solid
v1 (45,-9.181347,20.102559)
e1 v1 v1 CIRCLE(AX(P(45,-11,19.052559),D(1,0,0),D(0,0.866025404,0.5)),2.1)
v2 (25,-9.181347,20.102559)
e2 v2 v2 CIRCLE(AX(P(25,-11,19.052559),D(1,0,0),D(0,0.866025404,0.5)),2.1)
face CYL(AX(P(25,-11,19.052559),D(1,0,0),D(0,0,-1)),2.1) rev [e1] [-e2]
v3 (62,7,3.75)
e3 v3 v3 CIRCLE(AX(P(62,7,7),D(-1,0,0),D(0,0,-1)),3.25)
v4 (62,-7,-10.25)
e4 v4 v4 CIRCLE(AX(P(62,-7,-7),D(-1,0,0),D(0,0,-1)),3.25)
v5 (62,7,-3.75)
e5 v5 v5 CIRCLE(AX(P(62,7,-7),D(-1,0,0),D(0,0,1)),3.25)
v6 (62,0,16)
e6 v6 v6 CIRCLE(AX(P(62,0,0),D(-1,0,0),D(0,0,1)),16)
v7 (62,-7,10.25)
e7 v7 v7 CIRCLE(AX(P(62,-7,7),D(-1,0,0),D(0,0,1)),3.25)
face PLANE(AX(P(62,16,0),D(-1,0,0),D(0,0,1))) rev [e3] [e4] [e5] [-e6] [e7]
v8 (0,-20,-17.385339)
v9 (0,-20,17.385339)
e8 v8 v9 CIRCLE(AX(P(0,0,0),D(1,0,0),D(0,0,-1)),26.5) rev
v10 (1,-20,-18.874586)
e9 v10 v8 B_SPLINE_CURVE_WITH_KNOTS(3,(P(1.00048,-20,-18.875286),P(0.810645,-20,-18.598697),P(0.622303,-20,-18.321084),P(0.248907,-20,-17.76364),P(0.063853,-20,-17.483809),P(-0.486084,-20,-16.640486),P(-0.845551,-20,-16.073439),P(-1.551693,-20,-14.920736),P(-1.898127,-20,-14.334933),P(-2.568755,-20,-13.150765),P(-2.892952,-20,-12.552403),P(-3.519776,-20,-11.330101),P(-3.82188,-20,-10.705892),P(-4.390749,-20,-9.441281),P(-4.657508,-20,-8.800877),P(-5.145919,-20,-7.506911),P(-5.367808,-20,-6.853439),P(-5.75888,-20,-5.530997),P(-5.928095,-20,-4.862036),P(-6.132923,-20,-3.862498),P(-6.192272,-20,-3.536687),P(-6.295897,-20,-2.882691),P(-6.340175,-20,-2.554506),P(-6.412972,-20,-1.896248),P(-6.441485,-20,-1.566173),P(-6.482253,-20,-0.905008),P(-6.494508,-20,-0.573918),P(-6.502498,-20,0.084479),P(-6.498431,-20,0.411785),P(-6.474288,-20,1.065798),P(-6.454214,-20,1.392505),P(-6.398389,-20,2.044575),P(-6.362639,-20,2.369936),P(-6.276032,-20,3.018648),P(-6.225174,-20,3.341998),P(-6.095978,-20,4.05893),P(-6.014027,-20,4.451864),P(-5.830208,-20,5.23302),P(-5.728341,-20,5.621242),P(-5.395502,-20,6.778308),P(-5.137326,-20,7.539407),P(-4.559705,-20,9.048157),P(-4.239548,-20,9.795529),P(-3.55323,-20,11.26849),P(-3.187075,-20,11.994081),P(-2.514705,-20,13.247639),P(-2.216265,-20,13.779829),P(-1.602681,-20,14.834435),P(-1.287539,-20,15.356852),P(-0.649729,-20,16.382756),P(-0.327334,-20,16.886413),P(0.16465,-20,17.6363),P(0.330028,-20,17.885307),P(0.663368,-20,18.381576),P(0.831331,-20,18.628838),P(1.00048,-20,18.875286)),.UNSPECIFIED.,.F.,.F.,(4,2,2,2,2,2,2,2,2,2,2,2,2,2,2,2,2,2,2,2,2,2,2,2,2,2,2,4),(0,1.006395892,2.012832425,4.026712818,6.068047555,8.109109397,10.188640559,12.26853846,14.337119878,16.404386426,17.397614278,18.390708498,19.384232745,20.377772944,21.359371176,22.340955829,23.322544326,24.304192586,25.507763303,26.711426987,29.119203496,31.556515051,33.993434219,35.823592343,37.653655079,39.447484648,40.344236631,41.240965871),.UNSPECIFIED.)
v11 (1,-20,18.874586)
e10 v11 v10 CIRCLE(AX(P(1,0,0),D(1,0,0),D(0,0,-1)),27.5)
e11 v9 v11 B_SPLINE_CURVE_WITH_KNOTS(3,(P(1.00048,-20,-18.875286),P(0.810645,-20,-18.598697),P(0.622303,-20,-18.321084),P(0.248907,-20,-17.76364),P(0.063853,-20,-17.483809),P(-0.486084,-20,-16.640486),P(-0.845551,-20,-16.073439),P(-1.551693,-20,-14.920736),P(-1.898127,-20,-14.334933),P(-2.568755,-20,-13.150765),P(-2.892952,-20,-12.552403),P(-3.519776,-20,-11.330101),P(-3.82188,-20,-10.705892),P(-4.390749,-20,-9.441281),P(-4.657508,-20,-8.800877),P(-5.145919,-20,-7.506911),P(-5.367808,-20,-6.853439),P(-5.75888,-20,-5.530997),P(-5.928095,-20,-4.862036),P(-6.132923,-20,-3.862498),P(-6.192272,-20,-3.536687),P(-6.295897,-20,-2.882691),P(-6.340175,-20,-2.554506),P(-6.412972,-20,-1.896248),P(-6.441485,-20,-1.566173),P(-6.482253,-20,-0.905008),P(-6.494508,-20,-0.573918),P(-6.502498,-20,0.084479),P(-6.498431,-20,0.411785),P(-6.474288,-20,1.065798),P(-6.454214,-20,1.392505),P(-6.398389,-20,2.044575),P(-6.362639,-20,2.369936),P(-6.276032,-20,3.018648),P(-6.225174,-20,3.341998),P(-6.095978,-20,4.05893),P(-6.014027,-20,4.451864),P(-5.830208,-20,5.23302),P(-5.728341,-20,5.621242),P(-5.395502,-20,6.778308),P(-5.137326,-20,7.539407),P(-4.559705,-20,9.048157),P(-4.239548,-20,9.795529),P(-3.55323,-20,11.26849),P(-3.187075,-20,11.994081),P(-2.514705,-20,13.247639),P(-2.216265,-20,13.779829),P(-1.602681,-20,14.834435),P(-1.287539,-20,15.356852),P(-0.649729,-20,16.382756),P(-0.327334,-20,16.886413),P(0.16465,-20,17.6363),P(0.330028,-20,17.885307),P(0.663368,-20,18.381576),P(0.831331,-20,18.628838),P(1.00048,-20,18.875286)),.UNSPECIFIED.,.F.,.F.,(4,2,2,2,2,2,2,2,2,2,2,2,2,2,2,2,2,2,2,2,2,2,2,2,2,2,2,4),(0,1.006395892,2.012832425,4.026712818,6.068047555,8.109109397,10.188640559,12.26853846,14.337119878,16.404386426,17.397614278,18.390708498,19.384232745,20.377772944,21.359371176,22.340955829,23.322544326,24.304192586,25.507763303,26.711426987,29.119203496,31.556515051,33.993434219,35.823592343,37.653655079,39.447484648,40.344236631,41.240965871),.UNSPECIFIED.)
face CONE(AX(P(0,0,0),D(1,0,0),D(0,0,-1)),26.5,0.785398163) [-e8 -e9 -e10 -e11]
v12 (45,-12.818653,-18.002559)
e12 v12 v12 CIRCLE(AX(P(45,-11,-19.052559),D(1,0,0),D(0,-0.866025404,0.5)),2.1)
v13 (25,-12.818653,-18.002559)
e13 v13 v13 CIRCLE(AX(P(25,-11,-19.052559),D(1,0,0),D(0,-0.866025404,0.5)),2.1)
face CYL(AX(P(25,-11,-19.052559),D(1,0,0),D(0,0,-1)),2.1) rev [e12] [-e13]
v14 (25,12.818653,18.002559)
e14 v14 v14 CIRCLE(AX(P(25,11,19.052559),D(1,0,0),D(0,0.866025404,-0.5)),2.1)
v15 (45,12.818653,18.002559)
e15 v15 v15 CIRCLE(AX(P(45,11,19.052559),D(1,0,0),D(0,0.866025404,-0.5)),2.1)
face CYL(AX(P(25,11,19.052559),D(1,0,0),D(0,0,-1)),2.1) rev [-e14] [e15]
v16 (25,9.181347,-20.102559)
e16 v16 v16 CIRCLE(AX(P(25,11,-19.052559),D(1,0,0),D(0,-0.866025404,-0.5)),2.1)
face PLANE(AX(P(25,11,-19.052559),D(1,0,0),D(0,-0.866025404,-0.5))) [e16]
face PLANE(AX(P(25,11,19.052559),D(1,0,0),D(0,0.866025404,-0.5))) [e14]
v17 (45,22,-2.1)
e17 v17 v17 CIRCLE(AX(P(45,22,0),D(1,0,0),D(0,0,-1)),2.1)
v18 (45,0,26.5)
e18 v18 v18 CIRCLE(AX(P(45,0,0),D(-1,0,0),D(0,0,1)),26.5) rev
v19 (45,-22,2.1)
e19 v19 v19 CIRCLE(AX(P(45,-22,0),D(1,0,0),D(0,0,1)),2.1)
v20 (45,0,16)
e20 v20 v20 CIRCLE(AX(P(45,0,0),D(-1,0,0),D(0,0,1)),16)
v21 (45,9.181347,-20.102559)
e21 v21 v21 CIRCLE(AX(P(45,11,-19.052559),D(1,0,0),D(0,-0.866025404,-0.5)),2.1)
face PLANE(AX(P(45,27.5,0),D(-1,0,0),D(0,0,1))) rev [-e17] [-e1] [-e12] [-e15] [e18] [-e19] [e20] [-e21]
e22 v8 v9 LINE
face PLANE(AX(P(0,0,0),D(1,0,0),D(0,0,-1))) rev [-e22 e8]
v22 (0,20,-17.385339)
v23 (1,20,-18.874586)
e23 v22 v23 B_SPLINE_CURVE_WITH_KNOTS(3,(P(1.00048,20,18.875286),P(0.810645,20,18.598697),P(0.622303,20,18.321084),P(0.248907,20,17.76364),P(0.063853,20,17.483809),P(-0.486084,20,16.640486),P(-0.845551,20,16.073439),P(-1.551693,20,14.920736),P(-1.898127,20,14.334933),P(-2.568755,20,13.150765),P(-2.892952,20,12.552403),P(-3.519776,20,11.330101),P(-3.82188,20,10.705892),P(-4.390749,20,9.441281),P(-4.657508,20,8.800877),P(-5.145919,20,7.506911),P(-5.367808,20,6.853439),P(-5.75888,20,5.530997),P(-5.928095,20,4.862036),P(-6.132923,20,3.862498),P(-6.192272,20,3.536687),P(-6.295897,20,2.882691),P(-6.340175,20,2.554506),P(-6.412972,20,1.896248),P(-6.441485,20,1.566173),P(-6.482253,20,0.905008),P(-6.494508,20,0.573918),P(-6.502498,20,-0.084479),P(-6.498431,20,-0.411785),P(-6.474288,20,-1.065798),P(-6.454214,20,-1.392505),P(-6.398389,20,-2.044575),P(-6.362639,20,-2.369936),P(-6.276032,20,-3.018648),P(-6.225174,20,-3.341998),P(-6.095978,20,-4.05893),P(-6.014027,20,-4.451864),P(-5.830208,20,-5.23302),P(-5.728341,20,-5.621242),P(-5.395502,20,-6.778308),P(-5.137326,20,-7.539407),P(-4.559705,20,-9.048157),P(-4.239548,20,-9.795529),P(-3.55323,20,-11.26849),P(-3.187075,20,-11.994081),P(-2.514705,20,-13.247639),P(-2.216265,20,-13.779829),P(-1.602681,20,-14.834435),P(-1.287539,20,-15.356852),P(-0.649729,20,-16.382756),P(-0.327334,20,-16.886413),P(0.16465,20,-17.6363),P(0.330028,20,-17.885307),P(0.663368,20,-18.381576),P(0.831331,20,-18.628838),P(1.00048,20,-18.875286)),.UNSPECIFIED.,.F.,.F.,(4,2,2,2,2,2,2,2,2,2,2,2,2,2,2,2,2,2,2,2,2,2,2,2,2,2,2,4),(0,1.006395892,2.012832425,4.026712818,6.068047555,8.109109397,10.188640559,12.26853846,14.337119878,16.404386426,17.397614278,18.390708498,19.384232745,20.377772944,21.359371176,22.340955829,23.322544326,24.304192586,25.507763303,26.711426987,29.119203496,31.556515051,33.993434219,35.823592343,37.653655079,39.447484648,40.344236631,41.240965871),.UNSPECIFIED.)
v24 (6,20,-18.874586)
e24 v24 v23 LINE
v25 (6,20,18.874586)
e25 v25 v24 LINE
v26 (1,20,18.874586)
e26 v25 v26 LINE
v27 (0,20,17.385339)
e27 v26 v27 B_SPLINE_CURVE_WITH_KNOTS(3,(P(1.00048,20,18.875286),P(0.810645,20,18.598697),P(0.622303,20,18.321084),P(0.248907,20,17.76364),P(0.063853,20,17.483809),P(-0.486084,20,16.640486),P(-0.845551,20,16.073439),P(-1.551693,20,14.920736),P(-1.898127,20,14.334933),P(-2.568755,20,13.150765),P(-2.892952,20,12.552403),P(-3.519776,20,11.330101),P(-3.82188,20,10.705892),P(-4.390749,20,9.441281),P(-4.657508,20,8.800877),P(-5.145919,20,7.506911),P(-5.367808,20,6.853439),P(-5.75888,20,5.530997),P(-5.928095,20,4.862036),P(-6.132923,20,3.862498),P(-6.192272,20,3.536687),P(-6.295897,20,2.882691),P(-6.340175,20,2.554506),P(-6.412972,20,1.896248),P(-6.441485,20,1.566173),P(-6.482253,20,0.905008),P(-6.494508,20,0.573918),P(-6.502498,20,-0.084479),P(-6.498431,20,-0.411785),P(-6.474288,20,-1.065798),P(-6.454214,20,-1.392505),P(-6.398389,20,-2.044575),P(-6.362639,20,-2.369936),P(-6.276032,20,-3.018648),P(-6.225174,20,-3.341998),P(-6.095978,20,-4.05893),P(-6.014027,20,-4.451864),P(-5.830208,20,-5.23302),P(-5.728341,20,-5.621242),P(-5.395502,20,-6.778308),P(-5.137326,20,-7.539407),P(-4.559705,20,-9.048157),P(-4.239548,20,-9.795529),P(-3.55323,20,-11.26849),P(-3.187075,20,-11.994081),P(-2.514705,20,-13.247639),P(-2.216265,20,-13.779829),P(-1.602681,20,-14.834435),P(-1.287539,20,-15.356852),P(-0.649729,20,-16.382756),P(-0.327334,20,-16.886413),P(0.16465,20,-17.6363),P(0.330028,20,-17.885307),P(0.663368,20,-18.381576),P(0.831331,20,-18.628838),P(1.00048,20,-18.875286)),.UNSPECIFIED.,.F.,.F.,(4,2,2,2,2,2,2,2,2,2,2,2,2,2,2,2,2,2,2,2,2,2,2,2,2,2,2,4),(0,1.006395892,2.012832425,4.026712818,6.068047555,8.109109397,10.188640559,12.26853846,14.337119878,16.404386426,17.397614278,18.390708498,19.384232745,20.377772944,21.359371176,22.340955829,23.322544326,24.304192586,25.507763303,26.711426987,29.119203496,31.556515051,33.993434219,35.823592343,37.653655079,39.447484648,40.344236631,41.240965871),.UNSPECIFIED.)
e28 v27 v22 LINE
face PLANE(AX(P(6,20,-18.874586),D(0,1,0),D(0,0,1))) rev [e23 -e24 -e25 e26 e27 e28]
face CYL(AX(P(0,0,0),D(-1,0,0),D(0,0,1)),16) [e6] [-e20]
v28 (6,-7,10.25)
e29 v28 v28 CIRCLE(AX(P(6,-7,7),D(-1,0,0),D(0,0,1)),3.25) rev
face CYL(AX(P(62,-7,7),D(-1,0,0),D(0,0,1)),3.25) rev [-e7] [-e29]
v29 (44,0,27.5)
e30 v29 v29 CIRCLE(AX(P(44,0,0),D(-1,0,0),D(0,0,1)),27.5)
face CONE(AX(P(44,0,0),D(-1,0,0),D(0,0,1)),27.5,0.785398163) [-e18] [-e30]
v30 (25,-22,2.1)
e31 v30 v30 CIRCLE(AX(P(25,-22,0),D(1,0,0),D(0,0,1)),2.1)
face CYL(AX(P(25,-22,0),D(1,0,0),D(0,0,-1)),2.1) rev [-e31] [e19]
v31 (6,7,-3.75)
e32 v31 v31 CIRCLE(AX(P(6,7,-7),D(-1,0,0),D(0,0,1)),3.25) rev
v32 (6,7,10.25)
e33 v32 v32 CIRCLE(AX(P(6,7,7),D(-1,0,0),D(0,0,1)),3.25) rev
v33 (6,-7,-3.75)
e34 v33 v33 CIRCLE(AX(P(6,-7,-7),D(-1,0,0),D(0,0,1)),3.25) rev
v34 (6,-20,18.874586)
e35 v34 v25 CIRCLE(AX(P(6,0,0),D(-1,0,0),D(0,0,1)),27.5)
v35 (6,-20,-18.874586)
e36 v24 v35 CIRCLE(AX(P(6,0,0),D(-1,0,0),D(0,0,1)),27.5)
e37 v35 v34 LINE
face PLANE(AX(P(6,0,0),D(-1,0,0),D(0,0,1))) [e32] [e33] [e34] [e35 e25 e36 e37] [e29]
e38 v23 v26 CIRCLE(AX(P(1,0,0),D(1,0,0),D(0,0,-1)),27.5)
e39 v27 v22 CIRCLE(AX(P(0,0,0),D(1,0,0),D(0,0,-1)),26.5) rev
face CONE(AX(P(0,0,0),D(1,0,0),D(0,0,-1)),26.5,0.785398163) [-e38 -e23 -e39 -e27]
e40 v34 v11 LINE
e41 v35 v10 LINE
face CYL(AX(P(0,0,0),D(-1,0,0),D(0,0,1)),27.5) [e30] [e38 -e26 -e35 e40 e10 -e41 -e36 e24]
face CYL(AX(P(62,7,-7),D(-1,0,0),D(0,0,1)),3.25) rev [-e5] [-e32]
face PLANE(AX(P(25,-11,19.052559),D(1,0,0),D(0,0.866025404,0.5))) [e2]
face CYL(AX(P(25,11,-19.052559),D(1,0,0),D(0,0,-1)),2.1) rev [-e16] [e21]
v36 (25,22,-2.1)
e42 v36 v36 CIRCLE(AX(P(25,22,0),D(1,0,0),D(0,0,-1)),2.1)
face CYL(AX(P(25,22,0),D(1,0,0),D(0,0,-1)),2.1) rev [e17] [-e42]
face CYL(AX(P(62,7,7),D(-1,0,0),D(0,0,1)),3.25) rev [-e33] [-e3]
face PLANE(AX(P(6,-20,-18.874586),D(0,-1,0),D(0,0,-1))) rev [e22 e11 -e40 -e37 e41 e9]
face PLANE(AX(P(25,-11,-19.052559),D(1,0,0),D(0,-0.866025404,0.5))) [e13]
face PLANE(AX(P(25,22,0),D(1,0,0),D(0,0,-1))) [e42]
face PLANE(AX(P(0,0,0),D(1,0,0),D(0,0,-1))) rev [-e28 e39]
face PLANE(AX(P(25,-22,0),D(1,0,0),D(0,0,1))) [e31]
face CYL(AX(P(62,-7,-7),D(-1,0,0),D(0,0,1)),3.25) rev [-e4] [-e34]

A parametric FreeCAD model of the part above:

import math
import FreeCAD as App
import Part
import Sketcher
from FreeCAD import Vector
Q = App.Units.Quantity


def edges_at(feature, points):
    """Names of the edges that pass closest to the given points."""
    edges = feature.Shape.Edges
    near = lambda p: min(range(len(edges)), key=lambda i: edges[i].distToShape(Part.Vertex(*p))[0])
    return sorted({f"Edge{near(p) + 1}" for p in points})


def add_polygon(sketch, points):
    """Adds a closed chain of lines whose ends are joined by coincident constraints."""
    first, n = sketch.GeometryCount, len(points)
    for a, b in zip(points, points[1:] + points[:1]):
        sketch.addGeometry(Part.LineSegment(App.Vector(*a, 0), App.Vector(*b, 0)), False)
    for i in range(n):
        sketch.addConstraint(Sketcher.Constraint("Coincident", first + i, 2, first + (i + 1) % n, 1))

doc = App.newDocument("Part")
params = doc.addObject("Spreadsheet::Sheet", "Params")
for row, (alias, value) in enumerate([
    ("sketch1_width", "62 mm"),
    ("sketch1_width2", "17 mm"),
    ("sketch1_height", "16 mm"),
    ("sketch1_height2", "27.5 mm"),
    ("revolution_angle", "360 deg"),
    ("sketch2_diameter", "6.5 mm"),
    ("sketch3_diameter", "4.2 mm"),
    ("pocket2_length", "20 mm"),
    ("chamfer_size", "1 mm"),
    ("sketch4_radius", "27.5 mm"),
    ("pocket3_length", "6 mm"),
], start=1):
    params.set(f"A{row}", alias)
    params.set(f"B{row}", "=" + value)
    params.setAlias(f"B{row}", alias)

body = doc.addObject("PartDesign::Body", "Body")

# Sketch on XY plane
sketch1 = body.newObject("Sketcher::SketchObject", "Sketch")
sketch1.AttachmentSupport = (doc.getObject("XY_Plane"), [""])
sketch1.MapMode = "FlatFace"
add_polygon(sketch1, [(0, 28), (0, 0), (62, 0), (62, 16), (45, 16), (45, 28)])  # lines 0-5
sketch1.addConstraint([
    Sketcher.Constraint("Vertical", 0),
    Sketcher.Constraint("Horizontal", 1),
    Sketcher.Constraint("Vertical", 2),
    Sketcher.Constraint("Horizontal", 3),
    Sketcher.Constraint("Vertical", 4),
    Sketcher.Constraint("Horizontal", 5),
    Sketcher.Constraint("Coincident", 0, 2, -1, 1),
    Sketcher.Constraint("DistanceX", 1, 1, 1, 2, Q("62 mm")),
    Sketcher.Constraint("DistanceX", 3, 2, 3, 1, Q("17 mm")),
    Sketcher.Constraint("DistanceY", 2, 1, 2, 2, Q("16 mm")),
    Sketcher.Constraint("DistanceY", 0, 2, 0, 1, Q("27.5 mm")),
])
sketch1.setExpression("Constraints[13]", "Params.sketch1_width")
sketch1.setExpression("Constraints[14]", "Params.sketch1_width2")
sketch1.setExpression("Constraints[15]", "Params.sketch1_height")
sketch1.setExpression("Constraints[16]", "Params.sketch1_height2")
revolution = body.newObject("PartDesign::Revolution", "Revolution")
revolution.Profile = sketch1
revolution.ReferenceAxis = (sketch1, ["H_Axis"])
revolution.setExpression("Angle", "Params.revolution_angle")

# Sketch on YZ plane
sketch2 = body.newObject("Sketcher::SketchObject", "Sketch001")
sketch2.AttachmentSupport = (doc.getObject("YZ_Plane"), [""])
sketch2.MapMode = "FlatFace"
sketch2.addGeometry([
    Part.Circle(Vector(7, -7, 0), Vector(0, 0, 1), 3.2),
    Part.Circle(Vector(7, 7, 0), Vector(0, 0, 1), 3.2),
    Part.Circle(Vector(-7, 7, 0), Vector(0, 0, 1), 3.2),
    Part.Circle(Vector(-7, -7, 0), Vector(0, 0, 1), 3.2),
], False)
sketch2.addConstraint([
    Sketcher.Constraint("Equal", 0, 1),
    Sketcher.Constraint("Equal", 1, 2),
    Sketcher.Constraint("Equal", 2, 3),
    Sketcher.Constraint("Symmetric", 0, 3, 2, 3, -1, 1),
    Sketcher.Constraint("Symmetric", 1, 3, 3, 3, -1, 1),
    Sketcher.Constraint("Symmetric", 1, 3, 2, 3, -2),
    Sketcher.Constraint("Diameter", 0, Q("6.5 mm")),
    Sketcher.Constraint("DistanceX", -1, 1, 0, 3, Q("7 mm")),
    Sketcher.Constraint("DistanceY", 0, 3, -1, 1, Q("7 mm")),
])
sketch2.setExpression("Constraints[6]", "Params.sketch2_diameter")
pocket1 = body.newObject("PartDesign::Pocket", "Pocket")
pocket1.Profile = sketch2
pocket1.Type = "ThroughAll"
pocket1.Reversed = True

# Sketch on YZ plane
sketch3 = body.newObject("Sketcher::SketchObject", "Sketch002")
sketch3.AttachmentSupport = (doc.getObject("YZ_Plane"), [""])
sketch3.MapMode = "FlatFace"
sketch3.AttachmentOffset = App.Placement(Vector(0, 0, 45), App.Rotation())
sketch3.addGeometry(Part.Circle(Vector(22, 0, 0), Vector(0, 0, 1), 2.1), False)
sketch3.addConstraint([
    Sketcher.Constraint("PointOnObject", 0, 3, -1),
    Sketcher.Constraint("Diameter", 0, Q("4.2 mm")),
    Sketcher.Constraint("DistanceX", -1, 1, 0, 3, Q("22 mm")),
])
sketch3.setExpression("Constraints[1]", "Params.sketch3_diameter")
pocket2 = body.newObject("PartDesign::Pocket", "Pocket001")
pocket2.Profile = sketch3
pocket2.setExpression("Length", "Params.pocket2_length")
doc.recompute()

polarpattern = body.newObject("PartDesign::PolarPattern", "PolarPattern")
polarpattern.Originals = [pocket2]
polarpattern.Axis = (doc.getObject("X_Axis"), [""])
polarpattern.Angle = 360
polarpattern.Occurrences = 6
body.Tip = polarpattern
doc.recompute()

chamfer = body.newObject("PartDesign::Chamfer", "Chamfer")
chamfer.Base = (polarpattern, edges_at(polarpattern, [
    (0, -7, -3.75),
    (0, -7, 3.75),
    (0, 7, 10.25),
    (0, 7, -10.25),
    (45, 0, -27.5),
    (0, 0, -27.5),
]))
chamfer.setExpression("Size", "Params.chamfer_size")

# Sketch on YZ plane
sketch4 = body.newObject("Sketcher::SketchObject", "Sketch003")
sketch4.AttachmentSupport = (doc.getObject("YZ_Plane"), [""])
sketch4.MapMode = "FlatFace"
sketch4.AttachmentOffset = App.Placement(Vector(0, 0, 6), App.Rotation())
sketch4.addGeometry([
    Part.LineSegment(Vector(20, 19, 0), Vector(20, -19, 0)),
    Part.ArcOfCircle(Part.Circle(Vector(0, 0, 0), Vector(0, 0, 1), 28), math.radians(-137), math.radians(-43)),
    Part.LineSegment(Vector(-20, -19, 0), Vector(-20, 19, 0)),
    Part.ArcOfCircle(Part.Circle(Vector(0, 0, 0), Vector(0, 0, 1), 28), math.radians(43), math.radians(137)),
], False)
sketch4.addConstraint([
    Sketcher.Constraint("Coincident", 0, 2, 1, 2),
    Sketcher.Constraint("Coincident", 1, 1, 2, 1),
    Sketcher.Constraint("Coincident", 2, 2, 3, 2),
    Sketcher.Constraint("Coincident", 3, 1, 0, 1),
    Sketcher.Constraint("Vertical", 0),
    Sketcher.Constraint("Vertical", 2),
    Sketcher.Constraint("Coincident", 1, 3, -1, 1),
    Sketcher.Constraint("Coincident", 3, 3, -1, 1),
    Sketcher.Constraint("Equal", 1, 3),
    Sketcher.Constraint("Horizontal", 0, 2, 1, 1),
    Sketcher.Constraint("Radius", 1, Q("27.5 mm")),
    Sketcher.Constraint("DistanceX", -1, 1, 0, 2, Q("20 mm")),
])
sketch4.setExpression("Constraints[10]", "Params.sketch4_radius")
pocket3 = body.newObject("PartDesign::Pocket", "Pocket002")
pocket3.Profile = sketch4
pocket3.setExpression("Length", "Params.pocket3_length")

doc.recompute()
